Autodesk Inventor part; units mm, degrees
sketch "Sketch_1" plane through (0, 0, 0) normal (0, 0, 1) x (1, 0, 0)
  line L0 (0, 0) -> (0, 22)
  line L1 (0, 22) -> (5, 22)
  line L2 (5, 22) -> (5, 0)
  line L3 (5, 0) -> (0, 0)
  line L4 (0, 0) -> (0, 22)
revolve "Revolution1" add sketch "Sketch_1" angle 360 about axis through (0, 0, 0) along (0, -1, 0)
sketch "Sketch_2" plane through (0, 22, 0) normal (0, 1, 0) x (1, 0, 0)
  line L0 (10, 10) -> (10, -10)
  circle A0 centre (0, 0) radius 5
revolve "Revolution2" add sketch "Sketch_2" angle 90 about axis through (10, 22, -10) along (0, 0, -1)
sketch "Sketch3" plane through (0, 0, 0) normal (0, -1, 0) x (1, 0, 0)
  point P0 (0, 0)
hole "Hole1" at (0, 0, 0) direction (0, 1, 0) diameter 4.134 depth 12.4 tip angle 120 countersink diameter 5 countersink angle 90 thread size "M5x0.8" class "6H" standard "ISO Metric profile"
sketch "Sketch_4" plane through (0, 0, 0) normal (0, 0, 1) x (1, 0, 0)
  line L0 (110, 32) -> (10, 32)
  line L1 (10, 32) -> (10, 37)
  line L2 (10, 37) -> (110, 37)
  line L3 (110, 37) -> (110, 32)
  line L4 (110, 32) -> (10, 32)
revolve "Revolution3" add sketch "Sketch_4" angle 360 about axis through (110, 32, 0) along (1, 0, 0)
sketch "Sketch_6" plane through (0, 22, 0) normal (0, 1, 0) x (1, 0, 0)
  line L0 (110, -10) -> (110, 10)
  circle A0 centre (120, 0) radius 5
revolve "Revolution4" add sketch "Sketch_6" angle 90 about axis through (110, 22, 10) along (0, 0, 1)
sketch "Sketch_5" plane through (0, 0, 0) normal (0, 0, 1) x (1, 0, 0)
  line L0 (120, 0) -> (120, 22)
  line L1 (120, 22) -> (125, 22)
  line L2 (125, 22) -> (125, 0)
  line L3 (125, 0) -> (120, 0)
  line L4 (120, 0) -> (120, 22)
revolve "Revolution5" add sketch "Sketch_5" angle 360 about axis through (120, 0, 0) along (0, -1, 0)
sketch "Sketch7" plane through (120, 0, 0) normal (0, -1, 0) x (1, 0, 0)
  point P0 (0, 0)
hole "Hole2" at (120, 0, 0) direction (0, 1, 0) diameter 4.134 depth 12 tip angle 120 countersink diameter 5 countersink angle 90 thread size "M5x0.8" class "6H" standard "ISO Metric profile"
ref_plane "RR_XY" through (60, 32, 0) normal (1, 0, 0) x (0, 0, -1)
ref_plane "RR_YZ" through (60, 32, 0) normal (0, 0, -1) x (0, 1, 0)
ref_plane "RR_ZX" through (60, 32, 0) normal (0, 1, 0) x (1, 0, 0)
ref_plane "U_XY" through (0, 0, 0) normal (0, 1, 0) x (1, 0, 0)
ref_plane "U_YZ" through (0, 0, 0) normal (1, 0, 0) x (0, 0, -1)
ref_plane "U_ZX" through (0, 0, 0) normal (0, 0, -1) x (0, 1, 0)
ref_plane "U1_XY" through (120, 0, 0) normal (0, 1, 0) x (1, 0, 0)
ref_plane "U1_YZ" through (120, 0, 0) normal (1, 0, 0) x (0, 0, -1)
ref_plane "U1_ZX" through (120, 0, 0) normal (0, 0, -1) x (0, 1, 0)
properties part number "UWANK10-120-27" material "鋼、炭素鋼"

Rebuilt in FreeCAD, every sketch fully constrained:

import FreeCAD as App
import Part
import Sketcher

V = App.Vector
Q = App.Units.Quantity

doc = App.newDocument("Part")
body = doc.addObject("PartDesign::Body", "Body")

sketch1 = body.newObject("Sketcher::SketchObject", "Sketch")
sketch1.AttachmentSupport = (doc.getObject("XY_Plane"), [""])
sketch1.MapMode = "FlatFace"
sketch1.addGeometry([
    Part.LineSegment(V(0, 22, 0), V(0, 0, 0)),
    Part.LineSegment(V(0, 0, 0), V(5, 0, 0)),
    Part.LineSegment(V(5, 0, 0), V(5, 22, 0)),
    Part.LineSegment(V(5, 22, 0), V(0, 22, 0)),
], False)
sketch1.addConstraint([
    Sketcher.Constraint("Coincident", 0, 2, 1, 1),
    Sketcher.Constraint("Coincident", 1, 2, 2, 1),
    Sketcher.Constraint("Coincident", 2, 2, 3, 1),
    Sketcher.Constraint("Coincident", 3, 2, 0, 1),
    Sketcher.Constraint("Vertical", 0),
    Sketcher.Constraint("Horizontal", 1),
    Sketcher.Constraint("Vertical", 2),
    Sketcher.Constraint("Horizontal", 3),
    Sketcher.Constraint("Coincident", 0, 2, -1, 1),
    Sketcher.Constraint("DistanceX", 1, 1, 1, 2, Q("5 mm")),
    Sketcher.Constraint("DistanceY", 0, 2, 0, 1, Q("22 mm")),
])
revolution = body.newObject("PartDesign::Revolution", "Revolution")
revolution.Profile = sketch1
revolution.ReferenceAxis = (sketch1, ["V_Axis"])
revolution.Angle = 360

sketch2 = body.newObject("Sketcher::SketchObject", "Sketch001")
sketch2.AttachmentSupport = (doc.getObject("XZ_Plane"), [""])
sketch2.MapMode = "FlatFace"
sketch2.AttachmentOffset = App.Placement(V(0, 0, -22), App.Rotation())
sketch2.addGeometry(Part.Circle(V(0, 0, 0), V(0, 0, 1), 5), False)
sketch2.addGeometry(Part.LineSegment(V(10, 0, 0), V(10, -10, 0)), True)
sketch2.addConstraint([
    Sketcher.Constraint("Vertical", 1),
    Sketcher.Constraint("Coincident", 0, 3, -1, 1),
    Sketcher.Constraint("PointOnObject", 1, 1, -1),
    Sketcher.Constraint("Diameter", 0, Q("10 mm")),
    Sketcher.Constraint("DistanceY", 1, 2, 1, 1, Q("10 mm")),
    Sketcher.Constraint("DistanceX", -1, 1, 1, 1, Q("10 mm")),
])
revolution2 = body.newObject("PartDesign::Revolution", "Revolution001")
revolution2.Profile = sketch2
revolution2.ReferenceAxis = (sketch2, ["Axis0"])
revolution2.Angle = 90

sketch3 = body.newObject("Sketcher::SketchObject", "Sketch002")
sketch3.AttachmentSupport = (doc.getObject("XZ_Plane"), [""])
sketch3.MapMode = "FlatFace"
sketch3.addGeometry(Part.Circle(V(0, 0, 0), V(0, 0, 1), 2.1), False)
sketch3.addConstraint([
    Sketcher.Constraint("Coincident", 0, 3, -1, 1),
    Sketcher.Constraint("Diameter", 0, Q("4.134 mm")),
])
doc.recompute()
hole = body.newObject("PartDesign::Hole", "Hole")
hole.Profile = sketch3
hole.ThreadType = "None"
hole.Diameter = 4.134
hole.DepthType = "Dimension"
hole.Depth = 12.4
hole.DrillPoint = "Angled"
hole.DrillPointAngle = 120
hole.HoleCutType = "Countersink"
hole.HoleCutDiameter = 5
hole.HoleCutCountersinkAngle = 90

sketch4 = body.newObject("Sketcher::SketchObject", "Sketch003")
sketch4.AttachmentSupport = (doc.getObject("XY_Plane"), [""])
sketch4.MapMode = "FlatFace"
sketch4.addGeometry([
    Part.LineSegment(V(10, 32, 0), V(110, 32, 0)),
    Part.LineSegment(V(110, 32, 0), V(110, 37, 0)),
    Part.LineSegment(V(110, 37, 0), V(10, 37, 0)),
    Part.LineSegment(V(10, 37, 0), V(10, 32, 0)),
], False)
sketch4.addGeometry(Part.LineSegment(V(10, 32, 0), V(110, 32, 0)), True)
sketch4.addConstraint([
    Sketcher.Constraint("Coincident", 0, 2, 1, 1),
    Sketcher.Constraint("Coincident", 1, 2, 2, 1),
    Sketcher.Constraint("Coincident", 2, 2, 3, 1),
    Sketcher.Constraint("Coincident", 3, 2, 0, 1),
    Sketcher.Constraint("Horizontal", 0),
    Sketcher.Constraint("Vertical", 1),
    Sketcher.Constraint("Horizontal", 2),
    Sketcher.Constraint("Vertical", 3),
    Sketcher.Constraint("Horizontal", 4),
    Sketcher.Constraint("Coincident", 4, 1, 3, 2),
    Sketcher.Constraint("Vertical", 1, 2, 4, 2),
    Sketcher.Constraint("DistanceX", 0, 1, 0, 2, Q("100 mm")),
    Sketcher.Constraint("DistanceY", 1, 1, 1, 2, Q("5 mm")),
    Sketcher.Constraint("DistanceX", -1, 1, 0, 2, Q("110 mm")),
    Sketcher.Constraint("DistanceY", -1, 1, 0, 2, Q("32 mm")),
])
revolution3 = body.newObject("PartDesign::Revolution", "Revolution002")
revolution3.Profile = sketch4
revolution3.ReferenceAxis = (sketch4, ["Axis0"])
revolution3.Angle = 360

sketch5 = body.newObject("Sketcher::SketchObject", "Sketch004")
sketch5.AttachmentSupport = (doc.getObject("XZ_Plane"), [""])
sketch5.MapMode = "FlatFace"
sketch5.AttachmentOffset = App.Placement(V(0, 0, -22), App.Rotation())
sketch5.addGeometry(Part.Circle(V(120, 0, 0), V(0, 0, 1), 5), False)
sketch5.addGeometry(Part.LineSegment(V(110, 0, 0), V(110, 10, 0)), True)
sketch5.addConstraint([
    Sketcher.Constraint("Vertical", 1),
    Sketcher.Constraint("PointOnObject", 0, 3, -1),
    Sketcher.Constraint("PointOnObject", 1, 1, -1),
    Sketcher.Constraint("Diameter", 0, Q("10 mm")),
    Sketcher.Constraint("DistanceY", 1, 1, 1, 2, Q("10 mm")),
    Sketcher.Constraint("DistanceX", -1, 1, 0, 3, Q("120 mm")),
    Sketcher.Constraint("DistanceX", -1, 1, 1, 1, Q("110 mm")),
])
revolution4 = body.newObject("PartDesign::Revolution", "Revolution003")
revolution4.Profile = sketch5
revolution4.ReferenceAxis = (sketch5, ["Axis0"])
revolution4.Angle = 90

sketch6 = body.newObject("Sketcher::SketchObject", "Sketch005")
sketch6.AttachmentSupport = (doc.getObject("XY_Plane"), [""])
sketch6.MapMode = "FlatFace"
sketch6.addGeometry([
    Part.LineSegment(V(120, 22, 0), V(120, 0, 0)),
    Part.LineSegment(V(120, 0, 0), V(125, 0, 0)),
    Part.LineSegment(V(125, 0, 0), V(125, 22, 0)),
    Part.LineSegment(V(125, 22, 0), V(120, 22, 0)),
], False)
sketch6.addGeometry(Part.LineSegment(V(120, 22, 0), V(120, 0, 0)), True)
sketch6.addConstraint([
    Sketcher.Constraint("Coincident", 0, 2, 1, 1),
    Sketcher.Constraint("Coincident", 1, 2, 2, 1),
    Sketcher.Constraint("Coincident", 2, 2, 3, 1),
    Sketcher.Constraint("Coincident", 3, 2, 0, 1),
    Sketcher.Constraint("Vertical", 0),
    Sketcher.Constraint("Horizontal", 1),
    Sketcher.Constraint("Vertical", 2),
    Sketcher.Constraint("Horizontal", 3),
    Sketcher.Constraint("Vertical", 4),
    Sketcher.Constraint("Coincident", 4, 1, 3, 2),
    Sketcher.Constraint("PointOnObject", 0, 2, -1),
    Sketcher.Constraint("PointOnObject", 4, 2, -1),
    Sketcher.Constraint("DistanceX", 1, 1, 1, 2, Q("5 mm")),
    Sketcher.Constraint("DistanceY", 0, 2, 0, 1, Q("22 mm")),
    Sketcher.Constraint("DistanceX", -1, 1, 0, 2, Q("120 mm")),
])
revolution5 = body.newObject("PartDesign::Revolution", "Revolution004")
revolution5.Profile = sketch6
revolution5.ReferenceAxis = (sketch6, ["Axis0"])
revolution5.Angle = 360

sketch7 = body.newObject("Sketcher::SketchObject", "Sketch006")
sketch7.AttachmentSupport = (doc.getObject("XZ_Plane"), [""])
sketch7.MapMode = "FlatFace"
sketch7.addGeometry(Part.Circle(V(120, 0, 0), V(0, 0, 1), 2.1), False)
sketch7.addConstraint([
    Sketcher.Constraint("PointOnObject", 0, 3, -1),
    Sketcher.Constraint("Diameter", 0, Q("4.134 mm")),
    Sketcher.Constraint("DistanceX", -1, 1, 0, 3, Q("120 mm")),
])
doc.recompute()
hole2 = body.newObject("PartDesign::Hole", "Hole001")
hole2.Profile = sketch7
hole2.ThreadType = "None"
hole2.Diameter = 4.134
hole2.DepthType = "Dimension"
hole2.Depth = 12
hole2.DrillPoint = "Angled"
hole2.DrillPointAngle = 120
hole2.HoleCutType = "Countersink"
hole2.HoleCutDiameter = 5
hole2.HoleCutCountersinkAngle = 90

doc.recompute()
